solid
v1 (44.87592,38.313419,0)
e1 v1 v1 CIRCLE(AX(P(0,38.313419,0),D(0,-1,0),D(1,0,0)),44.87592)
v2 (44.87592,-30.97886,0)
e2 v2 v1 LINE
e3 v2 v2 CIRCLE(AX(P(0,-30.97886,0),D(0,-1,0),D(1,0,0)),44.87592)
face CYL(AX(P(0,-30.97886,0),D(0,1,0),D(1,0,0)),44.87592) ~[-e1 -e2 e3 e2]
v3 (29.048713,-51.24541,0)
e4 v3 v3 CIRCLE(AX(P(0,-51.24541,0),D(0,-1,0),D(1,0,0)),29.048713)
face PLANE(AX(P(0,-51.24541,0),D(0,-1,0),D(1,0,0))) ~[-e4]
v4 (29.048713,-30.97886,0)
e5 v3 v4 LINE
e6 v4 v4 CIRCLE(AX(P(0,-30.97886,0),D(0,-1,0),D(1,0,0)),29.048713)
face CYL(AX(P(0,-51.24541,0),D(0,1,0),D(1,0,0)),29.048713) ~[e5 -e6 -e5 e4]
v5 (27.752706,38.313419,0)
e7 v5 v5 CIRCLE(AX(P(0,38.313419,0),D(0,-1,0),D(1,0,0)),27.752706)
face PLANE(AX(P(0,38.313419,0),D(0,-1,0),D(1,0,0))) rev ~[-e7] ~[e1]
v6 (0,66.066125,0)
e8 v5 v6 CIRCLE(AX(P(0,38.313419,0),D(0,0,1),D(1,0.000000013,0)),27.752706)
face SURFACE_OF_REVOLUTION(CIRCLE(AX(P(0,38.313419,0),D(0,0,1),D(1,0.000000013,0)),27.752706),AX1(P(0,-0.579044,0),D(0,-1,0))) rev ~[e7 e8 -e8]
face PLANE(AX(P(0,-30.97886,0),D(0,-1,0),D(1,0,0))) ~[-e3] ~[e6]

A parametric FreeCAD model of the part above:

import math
import FreeCAD as App
import Part
import Sketcher
from FreeCAD import Vector

doc = App.newDocument("Part")
body = doc.addObject("PartDesign::Body", "Body")

# Sketch on XY plane
sketch1 = body.newObject("Sketcher::SketchObject", "Sketch")
sketch1.AttachmentSupport = (doc.getObject("XY_Plane"), [""])
sketch1.MapMode = "FlatFace"
sketch1.addGeometry(Part.LineSegment(Vector(45, 38, 0), Vector(28, 38, 0)), False)
sketch1.addGeometry(Part.ArcOfCircle(Part.Circle(Vector(0, 38, 0), Vector(0, 0, 1), 28), math.radians(0), math.radians(90)), False)
sketch1.addGeometry(Part.LineSegment(Vector(0, 66, 0), Vector(0, -51, 0)), False)
sketch1.addGeometry(Part.LineSegment(Vector(0, -51, 0), Vector(29, -51, 0)), False)
sketch1.addGeometry(Part.LineSegment(Vector(29, -51, 0), Vector(29, -31, 0)), False)
sketch1.addGeometry(Part.LineSegment(Vector(29, -31, 0), Vector(45, -31, 0)), False)
sketch1.addGeometry(Part.LineSegment(Vector(45, -31, 0), Vector(45, 38, 0)), False)
sketch1.addConstraint(Sketcher.Constraint("Coincident", 0, 2, 1, 1))
sketch1.addConstraint(Sketcher.Constraint("Coincident", 1, 2, 2, 1))
sketch1.addConstraint(Sketcher.Constraint("Coincident", 2, 2, 3, 1))
sketch1.addConstraint(Sketcher.Constraint("Coincident", 3, 2, 4, 1))
sketch1.addConstraint(Sketcher.Constraint("Coincident", 4, 2, 5, 1))
sketch1.addConstraint(Sketcher.Constraint("Coincident", 5, 2, 6, 1))
sketch1.addConstraint(Sketcher.Constraint("Coincident", 6, 2, 0, 1))
sketch1.addConstraint(Sketcher.Constraint("Horizontal", 0))
sketch1.addConstraint(Sketcher.Constraint("Vertical", 2))
sketch1.addConstraint(Sketcher.Constraint("Horizontal", 3))
sketch1.addConstraint(Sketcher.Constraint("Vertical", 4))
sketch1.addConstraint(Sketcher.Constraint("Horizontal", 5))
sketch1.addConstraint(Sketcher.Constraint("Vertical", 6))
sketch1.addConstraint(Sketcher.Constraint("PointOnObject", 1, 3, -2))
sketch1.addConstraint(Sketcher.Constraint("PointOnObject", 1, 2, -2))
sketch1.addConstraint(Sketcher.Constraint("Horizontal", 1, 3, 0, 2))
sketch1.addConstraint(Sketcher.Constraint("Radius", 1, 27.752706))
sketch1.addConstraint(Sketcher.Constraint("DistanceY", 4, 1, 4, 2, 20.26655))
sketch1.addConstraint(Sketcher.Constraint("DistanceY", 6, 1, 6, 2, 69.292279))
sketch1.addConstraint(Sketcher.Constraint("DistanceX", 0, 2, 0, 1, 17.123214))
sketch1.addConstraint(Sketcher.Constraint("DistanceX", 3, 1, 3, 2, 29.048713))
sketch1.addConstraint(Sketcher.Constraint("DistanceY", -1, 1, 1, 3, 38.313419))
revolution = body.newObject("PartDesign::Revolution", "Revolution")
revolution.Profile = sketch1
revolution.ReferenceAxis = (sketch1, ["V_Axis"])
revolution.Angle = 360

doc.recompute()
